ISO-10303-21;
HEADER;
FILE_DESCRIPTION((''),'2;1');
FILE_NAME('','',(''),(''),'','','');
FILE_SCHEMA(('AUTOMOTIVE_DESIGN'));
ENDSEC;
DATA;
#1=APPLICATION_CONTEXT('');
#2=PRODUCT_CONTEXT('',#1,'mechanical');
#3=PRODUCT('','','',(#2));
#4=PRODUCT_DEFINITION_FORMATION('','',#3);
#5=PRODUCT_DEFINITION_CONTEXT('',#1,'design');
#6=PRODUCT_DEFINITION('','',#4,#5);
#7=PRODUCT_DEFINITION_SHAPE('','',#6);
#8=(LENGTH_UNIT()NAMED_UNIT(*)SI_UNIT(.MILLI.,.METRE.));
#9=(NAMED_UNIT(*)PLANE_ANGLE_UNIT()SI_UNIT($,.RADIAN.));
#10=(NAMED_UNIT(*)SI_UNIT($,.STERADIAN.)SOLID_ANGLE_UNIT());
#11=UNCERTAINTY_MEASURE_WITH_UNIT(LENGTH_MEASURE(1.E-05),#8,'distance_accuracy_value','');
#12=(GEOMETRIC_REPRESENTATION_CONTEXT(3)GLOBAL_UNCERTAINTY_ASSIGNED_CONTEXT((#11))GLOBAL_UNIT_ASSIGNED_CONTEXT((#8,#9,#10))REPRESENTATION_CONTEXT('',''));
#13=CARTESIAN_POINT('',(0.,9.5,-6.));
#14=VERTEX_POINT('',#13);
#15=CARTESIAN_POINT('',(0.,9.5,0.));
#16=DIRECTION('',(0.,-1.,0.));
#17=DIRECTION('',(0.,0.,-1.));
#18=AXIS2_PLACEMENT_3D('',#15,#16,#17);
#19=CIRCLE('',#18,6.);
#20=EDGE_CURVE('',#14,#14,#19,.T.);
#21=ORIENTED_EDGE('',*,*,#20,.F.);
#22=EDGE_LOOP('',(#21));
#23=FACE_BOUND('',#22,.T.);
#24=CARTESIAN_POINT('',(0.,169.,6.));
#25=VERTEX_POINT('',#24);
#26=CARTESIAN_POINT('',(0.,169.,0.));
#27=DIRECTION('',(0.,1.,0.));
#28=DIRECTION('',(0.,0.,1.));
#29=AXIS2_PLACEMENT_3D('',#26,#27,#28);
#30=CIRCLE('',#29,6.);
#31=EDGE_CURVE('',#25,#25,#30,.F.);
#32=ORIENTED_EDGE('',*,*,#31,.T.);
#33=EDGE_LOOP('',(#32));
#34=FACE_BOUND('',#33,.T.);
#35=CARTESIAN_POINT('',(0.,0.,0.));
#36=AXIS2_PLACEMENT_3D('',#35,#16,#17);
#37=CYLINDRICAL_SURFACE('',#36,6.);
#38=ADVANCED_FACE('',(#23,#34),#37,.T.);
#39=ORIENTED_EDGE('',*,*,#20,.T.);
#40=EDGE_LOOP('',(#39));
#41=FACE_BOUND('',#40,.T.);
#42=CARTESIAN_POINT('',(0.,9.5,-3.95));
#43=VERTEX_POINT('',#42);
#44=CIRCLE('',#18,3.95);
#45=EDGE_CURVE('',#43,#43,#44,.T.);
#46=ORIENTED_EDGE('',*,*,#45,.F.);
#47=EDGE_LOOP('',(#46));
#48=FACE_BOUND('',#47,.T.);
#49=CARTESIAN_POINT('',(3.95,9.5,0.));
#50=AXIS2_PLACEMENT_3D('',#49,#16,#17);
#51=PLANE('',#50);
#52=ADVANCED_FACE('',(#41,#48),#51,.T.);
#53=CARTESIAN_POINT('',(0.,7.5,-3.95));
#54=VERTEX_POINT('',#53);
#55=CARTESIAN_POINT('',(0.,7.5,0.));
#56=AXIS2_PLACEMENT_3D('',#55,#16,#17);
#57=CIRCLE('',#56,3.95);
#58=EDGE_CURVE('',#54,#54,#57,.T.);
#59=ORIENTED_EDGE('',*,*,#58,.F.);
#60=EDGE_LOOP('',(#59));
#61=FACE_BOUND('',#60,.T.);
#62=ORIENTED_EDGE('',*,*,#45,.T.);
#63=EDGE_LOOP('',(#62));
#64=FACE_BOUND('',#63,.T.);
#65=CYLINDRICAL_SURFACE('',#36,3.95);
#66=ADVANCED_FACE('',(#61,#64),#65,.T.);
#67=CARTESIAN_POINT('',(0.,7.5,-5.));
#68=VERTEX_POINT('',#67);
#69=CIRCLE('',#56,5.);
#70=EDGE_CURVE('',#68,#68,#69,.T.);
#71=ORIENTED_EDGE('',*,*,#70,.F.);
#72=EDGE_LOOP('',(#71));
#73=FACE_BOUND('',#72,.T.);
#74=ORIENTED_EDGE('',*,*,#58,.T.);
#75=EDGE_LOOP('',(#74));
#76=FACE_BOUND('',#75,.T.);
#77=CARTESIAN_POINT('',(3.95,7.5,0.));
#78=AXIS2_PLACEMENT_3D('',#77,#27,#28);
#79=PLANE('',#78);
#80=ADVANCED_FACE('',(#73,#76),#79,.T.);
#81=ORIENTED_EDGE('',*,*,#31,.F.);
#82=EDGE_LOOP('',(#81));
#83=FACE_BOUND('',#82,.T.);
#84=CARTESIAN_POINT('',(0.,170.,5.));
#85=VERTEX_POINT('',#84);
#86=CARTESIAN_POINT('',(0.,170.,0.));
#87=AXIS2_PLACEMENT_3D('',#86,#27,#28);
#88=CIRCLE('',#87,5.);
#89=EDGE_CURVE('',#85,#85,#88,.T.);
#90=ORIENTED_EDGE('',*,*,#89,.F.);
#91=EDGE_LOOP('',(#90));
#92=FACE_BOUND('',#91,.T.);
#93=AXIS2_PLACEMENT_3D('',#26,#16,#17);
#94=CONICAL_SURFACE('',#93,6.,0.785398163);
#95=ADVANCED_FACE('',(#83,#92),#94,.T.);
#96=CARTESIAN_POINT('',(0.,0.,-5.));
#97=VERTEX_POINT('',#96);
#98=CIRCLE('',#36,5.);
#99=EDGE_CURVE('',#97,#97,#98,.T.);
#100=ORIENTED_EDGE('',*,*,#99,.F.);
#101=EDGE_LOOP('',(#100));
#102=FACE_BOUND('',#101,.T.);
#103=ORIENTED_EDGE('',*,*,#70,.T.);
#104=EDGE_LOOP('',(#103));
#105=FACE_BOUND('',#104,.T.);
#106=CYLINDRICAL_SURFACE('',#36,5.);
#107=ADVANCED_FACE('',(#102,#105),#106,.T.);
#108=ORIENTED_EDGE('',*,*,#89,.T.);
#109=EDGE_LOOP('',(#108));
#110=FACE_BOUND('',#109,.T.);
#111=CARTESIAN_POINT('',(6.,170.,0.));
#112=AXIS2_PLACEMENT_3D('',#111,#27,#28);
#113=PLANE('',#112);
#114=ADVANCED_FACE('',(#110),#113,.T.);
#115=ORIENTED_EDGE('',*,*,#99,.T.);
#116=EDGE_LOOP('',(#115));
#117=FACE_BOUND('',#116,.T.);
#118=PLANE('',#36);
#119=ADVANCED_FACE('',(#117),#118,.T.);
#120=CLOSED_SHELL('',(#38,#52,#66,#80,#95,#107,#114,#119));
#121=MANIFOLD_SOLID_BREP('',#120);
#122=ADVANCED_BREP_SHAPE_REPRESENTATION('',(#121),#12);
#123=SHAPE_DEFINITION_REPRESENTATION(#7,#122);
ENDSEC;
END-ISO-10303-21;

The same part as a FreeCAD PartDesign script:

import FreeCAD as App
import Part
import Sketcher
from FreeCAD import Vector
Q = App.Units.Quantity


def edges_at(feature, points):
    """Names of the edges that pass closest to the given points."""
    edges = feature.Shape.Edges
    near = lambda p: min(range(len(edges)), key=lambda i: edges[i].distToShape(Part.Vertex(*p))[0])
    return sorted({f"Edge{near(p) + 1}" for p in points})

doc = App.newDocument("Part")
body = doc.addObject("PartDesign::Body", "Body")

sketch1 = body.newObject("Sketcher::SketchObject", "Sketch")
sketch1.AttachmentSupport = (doc.getObject("XY_Plane"), [""])
sketch1.MapMode = "FlatFace"
sketch1.addGeometry([
    Part.LineSegment(Vector(0, 0, 0), Vector(5, 0, 0)),
    Part.LineSegment(Vector(5, 0, 0), Vector(5, 7.5, 0)),
    Part.LineSegment(Vector(5, 7.5, 0), Vector(4, 7.5, 0)),
    Part.LineSegment(Vector(4, 7.5, 0), Vector(4, 9.5, 0)),
    Part.LineSegment(Vector(4, 9.5, 0), Vector(6, 9.5, 0)),
    Part.LineSegment(Vector(6, 9.5, 0), Vector(6, 170, 0)),
    Part.LineSegment(Vector(6, 170, 0), Vector(0, 170, 0)),
    Part.LineSegment(Vector(0, 170, 0), Vector(0, 0, 0)),
], False)
sketch1.addConstraint([
    Sketcher.Constraint("Coincident", 0, 2, 1, 1),
    Sketcher.Constraint("Coincident", 1, 2, 2, 1),
    Sketcher.Constraint("Coincident", 2, 2, 3, 1),
    Sketcher.Constraint("Coincident", 3, 2, 4, 1),
    Sketcher.Constraint("Coincident", 4, 2, 5, 1),
    Sketcher.Constraint("Coincident", 5, 2, 6, 1),
    Sketcher.Constraint("Coincident", 6, 2, 7, 1),
    Sketcher.Constraint("Coincident", 7, 2, 0, 1),
    Sketcher.Constraint("Horizontal", 0),
    Sketcher.Constraint("Vertical", 1),
    Sketcher.Constraint("Horizontal", 2),
    Sketcher.Constraint("Vertical", 3),
    Sketcher.Constraint("Horizontal", 4),
    Sketcher.Constraint("Vertical", 5),
    Sketcher.Constraint("Horizontal", 6),
    Sketcher.Constraint("Vertical", 7),
    Sketcher.Constraint("Coincident", 7, 2, -1, 1),
    Sketcher.Constraint("DistanceX", 0, 1, 0, 2, Q("5 mm")),
    Sketcher.Constraint("DistanceX", 6, 2, 6, 1, Q("6 mm")),
    Sketcher.Constraint("DistanceY", 3, 1, 3, 2, Q("2 mm")),
    Sketcher.Constraint("DistanceY", 7, 2, 7, 1, Q("170 mm")),
    Sketcher.Constraint("DistanceY", 1, 1, 1, 2, Q("7.5 mm")),
    Sketcher.Constraint("DistanceX", 2, 2, 2, 1, Q("1.05 mm")),
])
revolution = body.newObject("PartDesign::Revolution", "Revolution")
revolution.Profile = sketch1
revolution.ReferenceAxis = (sketch1, ["V_Axis"])
revolution.Angle = 360
doc.recompute()

chamfer = body.newObject("PartDesign::Chamfer", "Chamfer")
chamfer.Base = (revolution, edges_at(revolution, [(0, 170, 6)]))
chamfer.Size = 1

doc.recompute()
